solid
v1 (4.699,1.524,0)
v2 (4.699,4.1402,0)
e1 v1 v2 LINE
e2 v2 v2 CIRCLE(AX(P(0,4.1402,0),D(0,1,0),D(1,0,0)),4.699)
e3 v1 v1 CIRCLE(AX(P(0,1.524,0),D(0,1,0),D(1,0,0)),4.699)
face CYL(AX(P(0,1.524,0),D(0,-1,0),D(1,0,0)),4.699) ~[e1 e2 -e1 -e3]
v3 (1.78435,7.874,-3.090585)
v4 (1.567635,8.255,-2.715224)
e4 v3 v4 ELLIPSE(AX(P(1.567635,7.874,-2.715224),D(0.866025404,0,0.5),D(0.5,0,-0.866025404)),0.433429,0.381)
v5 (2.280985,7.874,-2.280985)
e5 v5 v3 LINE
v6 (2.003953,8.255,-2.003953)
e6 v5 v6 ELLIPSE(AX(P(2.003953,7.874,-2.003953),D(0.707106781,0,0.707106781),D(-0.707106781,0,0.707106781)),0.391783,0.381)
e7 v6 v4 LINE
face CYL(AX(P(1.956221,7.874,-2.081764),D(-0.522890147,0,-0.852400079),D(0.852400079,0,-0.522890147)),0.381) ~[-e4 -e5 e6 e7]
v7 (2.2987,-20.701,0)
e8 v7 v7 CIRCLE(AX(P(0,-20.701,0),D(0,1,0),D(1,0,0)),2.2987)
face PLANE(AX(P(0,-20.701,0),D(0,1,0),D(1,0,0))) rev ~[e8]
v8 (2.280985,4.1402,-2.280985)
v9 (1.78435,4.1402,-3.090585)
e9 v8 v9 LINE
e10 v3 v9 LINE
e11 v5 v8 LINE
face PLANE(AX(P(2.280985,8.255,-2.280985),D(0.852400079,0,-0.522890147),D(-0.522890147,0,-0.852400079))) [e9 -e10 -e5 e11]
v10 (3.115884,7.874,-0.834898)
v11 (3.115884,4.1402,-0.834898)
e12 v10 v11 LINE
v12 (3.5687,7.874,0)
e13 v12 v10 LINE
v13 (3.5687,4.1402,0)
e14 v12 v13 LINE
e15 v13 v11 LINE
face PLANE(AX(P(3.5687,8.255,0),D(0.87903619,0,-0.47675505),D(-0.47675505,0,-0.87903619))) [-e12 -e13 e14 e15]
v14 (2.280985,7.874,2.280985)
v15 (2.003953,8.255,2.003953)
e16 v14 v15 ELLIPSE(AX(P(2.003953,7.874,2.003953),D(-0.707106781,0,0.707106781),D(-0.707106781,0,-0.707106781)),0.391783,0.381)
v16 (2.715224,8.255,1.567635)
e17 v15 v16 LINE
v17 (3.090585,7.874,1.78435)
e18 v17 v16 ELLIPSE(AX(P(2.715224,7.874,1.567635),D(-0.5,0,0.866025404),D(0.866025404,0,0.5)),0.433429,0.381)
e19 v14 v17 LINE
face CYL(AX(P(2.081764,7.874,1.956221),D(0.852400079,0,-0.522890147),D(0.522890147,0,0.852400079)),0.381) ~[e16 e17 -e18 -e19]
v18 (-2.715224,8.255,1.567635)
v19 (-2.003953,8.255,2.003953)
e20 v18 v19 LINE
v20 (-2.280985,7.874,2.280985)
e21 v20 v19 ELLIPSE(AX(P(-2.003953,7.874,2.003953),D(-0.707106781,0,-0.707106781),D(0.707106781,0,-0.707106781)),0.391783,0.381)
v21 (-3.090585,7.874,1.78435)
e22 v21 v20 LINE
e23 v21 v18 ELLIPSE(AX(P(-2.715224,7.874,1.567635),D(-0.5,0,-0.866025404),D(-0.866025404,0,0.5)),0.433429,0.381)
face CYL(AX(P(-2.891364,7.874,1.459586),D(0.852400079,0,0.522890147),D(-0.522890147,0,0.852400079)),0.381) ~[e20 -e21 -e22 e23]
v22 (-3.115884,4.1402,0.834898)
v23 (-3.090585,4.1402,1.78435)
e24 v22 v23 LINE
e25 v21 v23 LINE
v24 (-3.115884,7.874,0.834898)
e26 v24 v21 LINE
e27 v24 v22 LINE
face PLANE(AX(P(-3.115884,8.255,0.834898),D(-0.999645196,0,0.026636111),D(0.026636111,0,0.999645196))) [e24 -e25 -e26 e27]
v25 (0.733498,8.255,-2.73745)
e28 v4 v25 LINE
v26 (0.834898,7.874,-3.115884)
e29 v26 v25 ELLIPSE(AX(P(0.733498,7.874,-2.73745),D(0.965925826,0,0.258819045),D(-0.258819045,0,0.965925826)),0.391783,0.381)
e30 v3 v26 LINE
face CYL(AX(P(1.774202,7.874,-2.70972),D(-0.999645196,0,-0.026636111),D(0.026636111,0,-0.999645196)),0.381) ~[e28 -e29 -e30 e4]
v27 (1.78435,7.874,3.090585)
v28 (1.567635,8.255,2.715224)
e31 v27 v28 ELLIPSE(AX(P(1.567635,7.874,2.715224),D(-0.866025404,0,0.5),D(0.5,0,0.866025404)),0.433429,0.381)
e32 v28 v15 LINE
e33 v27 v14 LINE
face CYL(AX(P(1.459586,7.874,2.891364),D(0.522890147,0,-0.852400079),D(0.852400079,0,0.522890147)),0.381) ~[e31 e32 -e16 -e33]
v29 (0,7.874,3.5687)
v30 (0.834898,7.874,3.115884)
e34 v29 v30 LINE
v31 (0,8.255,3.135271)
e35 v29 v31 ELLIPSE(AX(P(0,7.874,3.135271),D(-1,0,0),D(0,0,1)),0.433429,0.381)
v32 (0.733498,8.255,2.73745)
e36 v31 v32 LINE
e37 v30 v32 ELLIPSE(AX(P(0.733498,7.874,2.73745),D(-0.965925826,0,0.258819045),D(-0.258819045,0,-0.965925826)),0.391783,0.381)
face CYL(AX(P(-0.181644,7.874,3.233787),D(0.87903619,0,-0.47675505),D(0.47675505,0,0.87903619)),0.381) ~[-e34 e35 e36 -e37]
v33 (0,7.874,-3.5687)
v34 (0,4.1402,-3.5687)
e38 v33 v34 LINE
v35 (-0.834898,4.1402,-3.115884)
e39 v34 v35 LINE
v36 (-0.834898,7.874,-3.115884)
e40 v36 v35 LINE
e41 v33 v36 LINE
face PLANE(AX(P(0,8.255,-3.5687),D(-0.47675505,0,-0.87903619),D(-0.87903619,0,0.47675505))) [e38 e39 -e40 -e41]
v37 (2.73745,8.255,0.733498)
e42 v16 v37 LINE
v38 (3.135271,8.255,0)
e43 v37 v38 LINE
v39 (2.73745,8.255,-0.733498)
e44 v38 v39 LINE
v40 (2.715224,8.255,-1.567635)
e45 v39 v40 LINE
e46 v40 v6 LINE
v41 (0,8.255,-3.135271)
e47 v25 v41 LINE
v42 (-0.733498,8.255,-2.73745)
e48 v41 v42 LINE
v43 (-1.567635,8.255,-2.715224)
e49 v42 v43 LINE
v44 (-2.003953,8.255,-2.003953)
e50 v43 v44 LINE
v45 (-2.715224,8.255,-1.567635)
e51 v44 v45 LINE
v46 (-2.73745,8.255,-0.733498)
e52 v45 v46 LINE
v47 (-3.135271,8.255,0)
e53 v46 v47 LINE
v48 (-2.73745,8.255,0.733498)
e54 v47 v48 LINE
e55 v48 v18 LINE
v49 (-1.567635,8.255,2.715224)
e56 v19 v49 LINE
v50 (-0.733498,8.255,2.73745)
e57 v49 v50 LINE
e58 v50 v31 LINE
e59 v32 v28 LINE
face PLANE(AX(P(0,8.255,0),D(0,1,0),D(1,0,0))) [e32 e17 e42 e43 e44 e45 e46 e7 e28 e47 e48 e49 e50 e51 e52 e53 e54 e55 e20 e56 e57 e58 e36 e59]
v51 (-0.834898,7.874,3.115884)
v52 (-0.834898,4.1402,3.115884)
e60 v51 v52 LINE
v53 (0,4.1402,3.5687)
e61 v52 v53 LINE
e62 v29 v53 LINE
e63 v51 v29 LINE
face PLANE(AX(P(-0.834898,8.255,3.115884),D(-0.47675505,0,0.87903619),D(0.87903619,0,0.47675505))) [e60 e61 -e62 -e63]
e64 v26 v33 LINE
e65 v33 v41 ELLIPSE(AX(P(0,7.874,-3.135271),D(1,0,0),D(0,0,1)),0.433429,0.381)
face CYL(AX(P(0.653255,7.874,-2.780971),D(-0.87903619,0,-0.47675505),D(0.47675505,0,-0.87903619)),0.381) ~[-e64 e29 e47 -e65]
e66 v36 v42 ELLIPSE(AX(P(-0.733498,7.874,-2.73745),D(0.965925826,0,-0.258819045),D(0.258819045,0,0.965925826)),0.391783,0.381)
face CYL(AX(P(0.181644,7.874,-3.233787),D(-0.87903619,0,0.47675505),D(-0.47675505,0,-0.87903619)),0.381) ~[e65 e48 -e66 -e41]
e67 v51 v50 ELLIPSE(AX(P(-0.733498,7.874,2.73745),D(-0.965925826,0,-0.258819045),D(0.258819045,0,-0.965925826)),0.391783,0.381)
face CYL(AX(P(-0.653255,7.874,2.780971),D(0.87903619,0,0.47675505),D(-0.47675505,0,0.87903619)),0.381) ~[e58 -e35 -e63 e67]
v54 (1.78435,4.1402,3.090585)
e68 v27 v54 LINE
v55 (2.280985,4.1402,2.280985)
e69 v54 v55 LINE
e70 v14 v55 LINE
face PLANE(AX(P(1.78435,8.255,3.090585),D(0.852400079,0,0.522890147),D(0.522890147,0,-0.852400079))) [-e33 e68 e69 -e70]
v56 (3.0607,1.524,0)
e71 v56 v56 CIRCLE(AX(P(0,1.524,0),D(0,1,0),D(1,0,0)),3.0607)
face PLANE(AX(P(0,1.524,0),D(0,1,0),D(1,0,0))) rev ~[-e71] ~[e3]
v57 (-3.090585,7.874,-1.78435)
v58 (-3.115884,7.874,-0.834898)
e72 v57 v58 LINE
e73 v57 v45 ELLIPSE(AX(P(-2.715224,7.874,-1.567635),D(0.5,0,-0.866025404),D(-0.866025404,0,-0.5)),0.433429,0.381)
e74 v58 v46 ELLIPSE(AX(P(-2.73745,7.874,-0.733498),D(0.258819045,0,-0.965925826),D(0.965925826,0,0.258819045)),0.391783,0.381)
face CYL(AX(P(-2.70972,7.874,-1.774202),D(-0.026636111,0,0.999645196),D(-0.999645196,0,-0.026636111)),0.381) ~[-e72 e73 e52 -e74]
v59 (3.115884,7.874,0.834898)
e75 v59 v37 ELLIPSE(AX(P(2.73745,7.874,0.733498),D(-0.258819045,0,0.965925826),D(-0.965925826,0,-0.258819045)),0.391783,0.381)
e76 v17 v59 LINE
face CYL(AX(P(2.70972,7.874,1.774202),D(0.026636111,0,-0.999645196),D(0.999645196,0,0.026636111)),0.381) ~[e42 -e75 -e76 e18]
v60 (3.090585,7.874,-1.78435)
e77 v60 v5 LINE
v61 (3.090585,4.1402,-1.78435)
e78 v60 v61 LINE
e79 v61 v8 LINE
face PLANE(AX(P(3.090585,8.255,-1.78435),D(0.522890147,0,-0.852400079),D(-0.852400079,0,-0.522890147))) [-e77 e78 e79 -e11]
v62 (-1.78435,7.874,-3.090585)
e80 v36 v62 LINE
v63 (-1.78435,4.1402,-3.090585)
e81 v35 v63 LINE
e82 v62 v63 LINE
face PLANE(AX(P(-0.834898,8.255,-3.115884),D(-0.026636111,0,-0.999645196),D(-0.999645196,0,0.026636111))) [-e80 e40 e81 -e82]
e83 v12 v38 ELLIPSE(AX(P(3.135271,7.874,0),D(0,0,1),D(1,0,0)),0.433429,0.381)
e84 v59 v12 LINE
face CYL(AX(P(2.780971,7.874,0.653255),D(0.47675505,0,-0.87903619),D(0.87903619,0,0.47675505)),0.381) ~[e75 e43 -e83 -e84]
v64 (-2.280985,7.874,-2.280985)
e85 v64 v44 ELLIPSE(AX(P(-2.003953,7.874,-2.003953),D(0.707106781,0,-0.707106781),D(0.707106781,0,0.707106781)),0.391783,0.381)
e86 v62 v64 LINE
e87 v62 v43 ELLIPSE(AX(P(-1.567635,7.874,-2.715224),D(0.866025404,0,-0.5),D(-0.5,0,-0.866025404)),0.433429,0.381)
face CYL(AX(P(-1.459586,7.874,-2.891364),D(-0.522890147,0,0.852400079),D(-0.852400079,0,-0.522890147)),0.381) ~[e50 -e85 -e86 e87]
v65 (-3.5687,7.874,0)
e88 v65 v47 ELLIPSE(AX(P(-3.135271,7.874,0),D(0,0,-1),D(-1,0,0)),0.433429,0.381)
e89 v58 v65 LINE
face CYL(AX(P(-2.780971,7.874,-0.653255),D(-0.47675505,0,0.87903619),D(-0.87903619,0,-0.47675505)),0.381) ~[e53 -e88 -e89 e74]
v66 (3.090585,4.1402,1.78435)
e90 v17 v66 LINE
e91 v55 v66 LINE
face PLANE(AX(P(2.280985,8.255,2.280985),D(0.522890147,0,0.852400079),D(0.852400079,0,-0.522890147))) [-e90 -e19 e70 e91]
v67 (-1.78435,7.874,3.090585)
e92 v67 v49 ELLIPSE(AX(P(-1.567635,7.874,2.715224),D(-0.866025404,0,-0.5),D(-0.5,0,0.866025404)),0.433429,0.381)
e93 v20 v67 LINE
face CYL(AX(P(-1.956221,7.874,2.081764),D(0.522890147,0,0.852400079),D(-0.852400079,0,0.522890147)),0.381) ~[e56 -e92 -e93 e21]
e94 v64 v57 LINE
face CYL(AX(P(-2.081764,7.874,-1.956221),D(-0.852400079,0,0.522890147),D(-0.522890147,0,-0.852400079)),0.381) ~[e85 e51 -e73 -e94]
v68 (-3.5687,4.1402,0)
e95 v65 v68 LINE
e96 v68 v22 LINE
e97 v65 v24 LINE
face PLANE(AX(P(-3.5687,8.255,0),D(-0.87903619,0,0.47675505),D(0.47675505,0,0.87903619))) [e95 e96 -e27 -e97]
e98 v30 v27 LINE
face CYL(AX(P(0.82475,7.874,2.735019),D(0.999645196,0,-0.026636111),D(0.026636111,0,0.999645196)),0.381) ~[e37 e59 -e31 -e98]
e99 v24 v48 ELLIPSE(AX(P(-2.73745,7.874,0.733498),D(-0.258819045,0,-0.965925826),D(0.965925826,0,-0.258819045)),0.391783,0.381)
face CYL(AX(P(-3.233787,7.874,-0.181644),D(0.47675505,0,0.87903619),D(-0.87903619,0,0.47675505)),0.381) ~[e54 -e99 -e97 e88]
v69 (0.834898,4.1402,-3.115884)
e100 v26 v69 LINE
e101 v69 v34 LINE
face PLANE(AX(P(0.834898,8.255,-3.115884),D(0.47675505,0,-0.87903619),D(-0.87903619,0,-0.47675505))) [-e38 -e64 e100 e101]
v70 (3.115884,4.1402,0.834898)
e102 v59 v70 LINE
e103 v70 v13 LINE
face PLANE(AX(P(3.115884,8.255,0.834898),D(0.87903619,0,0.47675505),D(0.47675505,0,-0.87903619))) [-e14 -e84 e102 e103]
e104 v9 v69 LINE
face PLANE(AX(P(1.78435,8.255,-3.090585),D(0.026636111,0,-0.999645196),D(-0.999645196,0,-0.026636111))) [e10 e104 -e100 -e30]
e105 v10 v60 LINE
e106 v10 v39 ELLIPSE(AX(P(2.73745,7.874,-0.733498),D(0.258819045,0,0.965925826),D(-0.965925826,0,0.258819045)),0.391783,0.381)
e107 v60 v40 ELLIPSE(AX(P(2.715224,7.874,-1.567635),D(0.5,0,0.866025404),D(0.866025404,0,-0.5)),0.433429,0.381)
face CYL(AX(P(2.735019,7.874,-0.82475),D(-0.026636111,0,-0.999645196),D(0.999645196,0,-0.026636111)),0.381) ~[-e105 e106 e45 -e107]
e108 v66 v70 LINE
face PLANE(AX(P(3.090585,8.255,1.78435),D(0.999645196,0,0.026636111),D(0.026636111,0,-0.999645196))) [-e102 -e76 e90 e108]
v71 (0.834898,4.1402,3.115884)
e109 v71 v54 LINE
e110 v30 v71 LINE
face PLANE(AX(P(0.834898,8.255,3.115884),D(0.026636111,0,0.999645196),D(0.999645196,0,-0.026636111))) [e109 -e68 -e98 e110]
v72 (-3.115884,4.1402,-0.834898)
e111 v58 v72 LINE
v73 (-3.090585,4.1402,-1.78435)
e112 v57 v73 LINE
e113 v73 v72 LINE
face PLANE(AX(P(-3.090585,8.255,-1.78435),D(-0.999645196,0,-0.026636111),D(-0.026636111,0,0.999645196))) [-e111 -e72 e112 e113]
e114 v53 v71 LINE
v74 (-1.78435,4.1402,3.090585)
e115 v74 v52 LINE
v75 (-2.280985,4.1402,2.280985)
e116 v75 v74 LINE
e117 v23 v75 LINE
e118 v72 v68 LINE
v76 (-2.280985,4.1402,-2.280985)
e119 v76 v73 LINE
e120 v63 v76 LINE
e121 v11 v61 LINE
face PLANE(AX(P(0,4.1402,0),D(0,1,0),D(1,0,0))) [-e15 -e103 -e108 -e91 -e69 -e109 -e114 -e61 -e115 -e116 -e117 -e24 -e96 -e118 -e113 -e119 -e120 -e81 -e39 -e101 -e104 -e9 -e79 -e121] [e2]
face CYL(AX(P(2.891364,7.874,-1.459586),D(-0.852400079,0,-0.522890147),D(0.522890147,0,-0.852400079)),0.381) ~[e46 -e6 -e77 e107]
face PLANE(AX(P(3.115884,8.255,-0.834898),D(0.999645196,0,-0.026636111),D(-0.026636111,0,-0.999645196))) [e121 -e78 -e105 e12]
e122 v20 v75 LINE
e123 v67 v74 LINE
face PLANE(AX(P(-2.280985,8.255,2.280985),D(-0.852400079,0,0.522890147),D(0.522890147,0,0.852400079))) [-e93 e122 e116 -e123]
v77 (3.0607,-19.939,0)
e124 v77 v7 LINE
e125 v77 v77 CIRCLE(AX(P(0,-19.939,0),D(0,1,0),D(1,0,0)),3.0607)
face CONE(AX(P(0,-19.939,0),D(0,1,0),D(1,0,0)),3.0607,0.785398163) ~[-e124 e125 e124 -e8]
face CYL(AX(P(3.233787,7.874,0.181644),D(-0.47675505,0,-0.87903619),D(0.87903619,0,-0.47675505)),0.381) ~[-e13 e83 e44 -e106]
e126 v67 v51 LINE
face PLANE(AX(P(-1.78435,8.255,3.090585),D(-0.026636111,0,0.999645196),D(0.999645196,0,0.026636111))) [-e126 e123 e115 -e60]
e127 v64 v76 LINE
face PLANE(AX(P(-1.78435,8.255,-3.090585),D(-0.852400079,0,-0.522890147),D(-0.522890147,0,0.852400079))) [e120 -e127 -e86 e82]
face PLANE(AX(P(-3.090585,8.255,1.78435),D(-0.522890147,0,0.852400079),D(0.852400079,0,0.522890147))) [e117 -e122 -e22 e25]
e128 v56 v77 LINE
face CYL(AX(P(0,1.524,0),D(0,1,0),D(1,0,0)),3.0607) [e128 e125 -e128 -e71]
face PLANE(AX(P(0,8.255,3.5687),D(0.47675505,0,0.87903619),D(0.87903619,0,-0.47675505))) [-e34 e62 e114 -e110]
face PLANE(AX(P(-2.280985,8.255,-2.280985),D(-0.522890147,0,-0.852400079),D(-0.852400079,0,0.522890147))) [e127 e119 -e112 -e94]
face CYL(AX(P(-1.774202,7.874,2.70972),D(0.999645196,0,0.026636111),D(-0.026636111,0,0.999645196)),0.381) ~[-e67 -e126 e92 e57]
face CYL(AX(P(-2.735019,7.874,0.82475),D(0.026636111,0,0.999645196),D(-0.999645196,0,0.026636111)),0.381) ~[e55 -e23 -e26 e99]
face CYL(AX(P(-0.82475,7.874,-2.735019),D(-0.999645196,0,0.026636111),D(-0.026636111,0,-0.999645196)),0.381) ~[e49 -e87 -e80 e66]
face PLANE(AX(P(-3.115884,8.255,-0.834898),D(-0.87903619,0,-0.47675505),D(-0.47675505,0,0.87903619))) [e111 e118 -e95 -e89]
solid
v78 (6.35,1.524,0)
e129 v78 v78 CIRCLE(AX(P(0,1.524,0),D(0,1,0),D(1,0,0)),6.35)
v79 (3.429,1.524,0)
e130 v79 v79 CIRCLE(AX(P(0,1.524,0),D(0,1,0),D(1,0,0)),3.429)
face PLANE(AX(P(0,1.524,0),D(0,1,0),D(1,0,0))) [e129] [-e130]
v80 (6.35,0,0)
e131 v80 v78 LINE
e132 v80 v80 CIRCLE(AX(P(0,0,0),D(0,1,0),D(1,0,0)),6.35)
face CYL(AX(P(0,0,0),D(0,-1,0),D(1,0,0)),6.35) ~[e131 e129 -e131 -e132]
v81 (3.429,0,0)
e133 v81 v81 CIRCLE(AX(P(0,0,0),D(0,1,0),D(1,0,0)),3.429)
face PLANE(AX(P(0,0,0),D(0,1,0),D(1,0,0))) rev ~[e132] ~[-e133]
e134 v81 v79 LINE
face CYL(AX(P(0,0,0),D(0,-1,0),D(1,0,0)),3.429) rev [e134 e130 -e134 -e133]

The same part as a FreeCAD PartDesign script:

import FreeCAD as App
import Part
import Sketcher
Q = App.Units.Quantity


def edges_at(feature, points):
    """Names of the edges that pass closest to the given points."""
    edges = feature.Shape.Edges
    near = lambda p: min(range(len(edges)), key=lambda i: edges[i].distToShape(Part.Vertex(*p))[0])
    return sorted({f"Edge{near(p) + 1}" for p in points})


def add_polygon(sketch, points):
    """Adds a closed chain of lines whose ends are joined by coincident constraints."""
    first, n = sketch.GeometryCount, len(points)
    for a, b in zip(points, points[1:] + points[:1]):
        sketch.addGeometry(Part.LineSegment(App.Vector(*a, 0), App.Vector(*b, 0)), False)
    for i in range(n):
        sketch.addConstraint(Sketcher.Constraint("Coincident", first + i, 2, first + (i + 1) % n, 1))

doc = App.newDocument("Part")
params = doc.addObject("Spreadsheet::Sheet", "Params")
for row, (alias, value) in enumerate([
    ("sketch1_diameter", "0.5 in"),
    ("sketch1_diameter2", "0.27 in"),
    ("pad1_length", "0.06 in"),
    ("sketch2_diameter", "0.241 in"),
    ("pad2_length", "0.875 in"),
    ("sketch3_diameter", "0.37 in"),
    ("pad3_length", "0.265 in"),
    ("sketch4_diameter", "0.37 in"),
    ("pocket1_length", "0.162 in"),
    ("fillet_radius", "0.015 in"),
    ("chamfer_size", "0.03 in"),
], start=1):
    params.set(f"A{row}", alias)
    params.set(f"B{row}", "=" + value)
    params.setAlias(f"B{row}", alias)

body = doc.addObject("PartDesign::Body", "Body")

# Sketch on XZ plane
sketch1 = body.newObject("Sketcher::SketchObject", "Sketch")
sketch1.AttachmentSupport = (doc.getObject("XZ_Plane"), [""])
sketch1.MapMode = "FlatFace"
sketch1.addGeometry(Part.Circle(App.Vector(0, 0, 0), App.Vector(0, 0, 1), 6.3), False)
sketch1.addGeometry(Part.Circle(App.Vector(0, 0, 0), App.Vector(0, 0, 1), 3.4), False)
sketch1.addConstraint(Sketcher.Constraint("Coincident", 0, 3, -1, 1))
sketch1.addConstraint(Sketcher.Constraint("Coincident", 1, 3, -1, 1))
sketch1.addConstraint(Sketcher.Constraint("Diameter", 0, Q("0.5 in")))
sketch1.addConstraint(Sketcher.Constraint("Diameter", 1, Q("0.27 in")))
sketch1.setExpression("Constraints[2]", "Params.sketch1_diameter")
sketch1.setExpression("Constraints[3]", "Params.sketch1_diameter2")
pad1 = body.newObject("PartDesign::Pad", "Pad")
pad1.Profile = sketch1
pad1.setExpression("Length", "Params.pad1_length")
pad1.Reversed = True
body2 = doc.addObject("PartDesign::Body", "Body001")

# Sketch on XZ plane
sketch2 = body2.newObject("Sketcher::SketchObject", "Sketch001")
sketch2.AttachmentSupport = (doc.getObject("XZ_Plane001"), [""])
sketch2.MapMode = "FlatFace"
sketch2.AttachmentOffset = App.Placement(App.Vector(0, 0, -0.06 * 25.4), App.Rotation())
sketch2.addGeometry(Part.Circle(App.Vector(0, 0, 0), App.Vector(0, 0, 1), 3.1), False)
sketch2.addConstraint(Sketcher.Constraint("Coincident", 0, 3, -1, 1))
sketch2.addConstraint(Sketcher.Constraint("Diameter", 0, Q("0.241 in")))
sketch2.setExpression("Constraints[1]", "Params.sketch2_diameter")
pad2 = body2.newObject("PartDesign::Pad", "Pad001")
pad2.Profile = sketch2
pad2.setExpression("Length", "Params.pad2_length")
body3 = doc.addObject("PartDesign::Body", "Body002")

# Sketch on XZ plane
sketch3 = body3.newObject("Sketcher::SketchObject", "Sketch002")
sketch3.AttachmentSupport = (doc.getObject("XZ_Plane002"), [""])
sketch3.MapMode = "FlatFace"
sketch3.AttachmentOffset = App.Placement(App.Vector(0, 0, -0.06 * 25.4), App.Rotation())
sketch3.addGeometry(Part.Circle(App.Vector(0, 0, 0), App.Vector(0, 0, 1), 4.7), False)
sketch3.addConstraint(Sketcher.Constraint("Coincident", 0, 3, -1, 1))
sketch3.addConstraint(Sketcher.Constraint("Diameter", 0, Q("0.37 in")))
sketch3.setExpression("Constraints[1]", "Params.sketch3_diameter")
pad3 = body3.newObject("PartDesign::Pad", "Pad002")
pad3.Profile = sketch3
pad3.setExpression("Length", "Params.pad3_length")
pad3.Reversed = True

# Sketch on XZ plane
sketch4 = body3.newObject("Sketcher::SketchObject", "Sketch003")
sketch4.AttachmentSupport = (doc.getObject("XZ_Plane002"), [""])
sketch4.MapMode = "FlatFace"
sketch4.AttachmentOffset = App.Placement(App.Vector(0, 0, -0.325 * 25.4), App.Rotation())
sketch4.addGeometry(Part.Circle(App.Vector(0, 0, 0), App.Vector(0, 0, 1), 4.7), False)  # 0
add_polygon(sketch4, [(-0.8, -3.1), (0, -3.6), (0.8, -3.1), (1.8, -3.1), (2.3, -2.3), (3.1, -1.8), (3.1, -0.8), (3.6, 0), (3.1, 0.8), (3.1, 1.8), (2.3, 2.3), (1.8, 3.1), (0.8, 3.1), (0, 3.6), (-0.8, 3.1), (-1.8, 3.1), (-2.3, 2.3), (-3.1, 1.8), (-3.1, 0.8), (-3.6, 0), (-3.1, -0.8), (-3.1, -1.8), (-2.3, -2.3), (-1.8, -3.1)])  # lines 1-24
sketch4.addConstraint(Sketcher.Constraint("Coincident", 0, 3, -1, 1))
sketch4.addConstraint(Sketcher.Constraint("Symmetric", 1, 2, 13, 2, -1, 1))
sketch4.addConstraint(Sketcher.Constraint("Symmetric", 2, 2, 14, 2, -1, 1))
sketch4.addConstraint(Sketcher.Constraint("Symmetric", 3, 2, 15, 2, -1, 1))
sketch4.addConstraint(Sketcher.Constraint("Symmetric", 4, 2, 16, 2, -1, 1))
sketch4.addConstraint(Sketcher.Constraint("Symmetric", 5, 2, 17, 2, -1, 1))
sketch4.addConstraint(Sketcher.Constraint("Symmetric", 6, 2, 18, 2, -1, 1))
sketch4.addConstraint(Sketcher.Constraint("Symmetric", 7, 2, 19, 2, -1, 1))
sketch4.addConstraint(Sketcher.Constraint("Symmetric", 8, 2, 20, 2, -1, 1))
sketch4.addConstraint(Sketcher.Constraint("Symmetric", 9, 2, 21, 2, -1, 1))
sketch4.addConstraint(Sketcher.Constraint("Symmetric", 10, 2, 22, 2, -1, 1))
sketch4.addConstraint(Sketcher.Constraint("Symmetric", 11, 2, 23, 2, -1, 1))
sketch4.addConstraint(Sketcher.Constraint("Symmetric", 12, 2, 24, 2, -1, 1))
sketch4.addConstraint(Sketcher.Constraint("Symmetric", 12, 2, 14, 2, -2))
sketch4.addConstraint(Sketcher.Constraint("Symmetric", 11, 2, 15, 2, -2))
sketch4.addConstraint(Sketcher.Constraint("Symmetric", 10, 2, 16, 2, -2))
sketch4.addConstraint(Sketcher.Constraint("Symmetric", 9, 2, 17, 2, -2))
sketch4.addConstraint(Sketcher.Constraint("Symmetric", 8, 2, 18, 2, -2))
sketch4.addConstraint(Sketcher.Constraint("PointOnObject", 1, 2, -2))
sketch4.addConstraint(Sketcher.Constraint("PointOnObject", 7, 2, -1))
sketch4.addConstraint(Sketcher.Constraint("Perpendicular", 1, 7))
sketch4.addConstraint(Sketcher.Constraint("Perpendicular", 3, 9))
sketch4.addConstraint(Sketcher.Constraint("Perpendicular", 4, 10))
sketch4.addConstraint(Sketcher.Constraint("Equal", 2, 3))
sketch4.addConstraint(Sketcher.Constraint("Equal", 3, 4))
sketch4.addConstraint(Sketcher.Constraint("Equal", 4, 5))
sketch4.addConstraint(Sketcher.Constraint("Equal", 5, 6))
sketch4.addConstraint(Sketcher.Constraint("Equal", 6, 7))
sketch4.addConstraint(Sketcher.Constraint("Diameter", 0, Q("0.37 in")))
sketch4.addConstraint(Sketcher.Constraint("DistanceY", 1, 2, -1, 1, Q("0.1405 in")))
sketch4.addConstraint(Sketcher.Constraint("DistanceY", 5, 2, 9, 2, Q("0.1405 in")))
sketch4.addConstraint(Sketcher.Constraint("DistanceX", -1, 1, 2, 2, Q("0.834898 mm")))
sketch4.addConstraint(Sketcher.Constraint("DistanceY", 2, 2, 3, 2, Q("0.025299 mm")))
sketch4.setExpression("Constraints[52]", "Params.sketch4_diameter")
pocket1 = body3.newObject("PartDesign::Pocket", "Pocket")
pocket1.Profile = sketch4
pocket1.setExpression("Length", "Params.pocket1_length")
pocket1.Reversed = True
doc.recompute()

boolean = body2.newObject("PartDesign::Boolean", "Boolean")
boolean.Type = "Fuse"
boolean.addObjects([body3])
doc.recompute()

fillet = body2.newObject("PartDesign::Fillet", "Fillet")
fillet.Base = (boolean, edges_at(boolean, [
    (-0.417, 8.255, -3.342),
    (-1.31, 8.255, -3.103),
    (-2.033, 8.255, -2.686),
    (-2.686, 8.255, -2.033),
    (-3.103, 8.255, -1.31),
    (-3.342, 8.255, -0.417),
    (-3.342, 8.255, 0.417),
    (-3.103, 8.255, 1.31),
    (-2.686, 8.255, 2.033),
    (-2.033, 8.255, 2.686),
    (-1.31, 8.255, 3.103),
    (-0.417, 8.255, 3.342),
    (0.417, 8.255, 3.342),
    (1.31, 8.255, 3.103),
    (2.033, 8.255, 2.686),
    (2.686, 8.255, 2.033),
    (3.103, 8.255, 1.31),
    (3.342, 8.255, 0.417),
    (3.342, 8.255, -0.417),
    (3.103, 8.255, -1.31),
    (2.686, 8.255, -2.033),
    (2.033, 8.255, -2.686),
    (1.31, 8.255, -3.103),
    (0.417, 8.255, -3.342),
]))
fillet.setExpression("Radius", "Params.fillet_radius")
doc.recompute()

chamfer = body2.newObject("PartDesign::Chamfer", "Chamfer")
chamfer.Base = (fillet, edges_at(fillet, [(-3.061, -20.701, 0)]))
chamfer.setExpression("Size", "Params.chamfer_size")

doc.recompute()
